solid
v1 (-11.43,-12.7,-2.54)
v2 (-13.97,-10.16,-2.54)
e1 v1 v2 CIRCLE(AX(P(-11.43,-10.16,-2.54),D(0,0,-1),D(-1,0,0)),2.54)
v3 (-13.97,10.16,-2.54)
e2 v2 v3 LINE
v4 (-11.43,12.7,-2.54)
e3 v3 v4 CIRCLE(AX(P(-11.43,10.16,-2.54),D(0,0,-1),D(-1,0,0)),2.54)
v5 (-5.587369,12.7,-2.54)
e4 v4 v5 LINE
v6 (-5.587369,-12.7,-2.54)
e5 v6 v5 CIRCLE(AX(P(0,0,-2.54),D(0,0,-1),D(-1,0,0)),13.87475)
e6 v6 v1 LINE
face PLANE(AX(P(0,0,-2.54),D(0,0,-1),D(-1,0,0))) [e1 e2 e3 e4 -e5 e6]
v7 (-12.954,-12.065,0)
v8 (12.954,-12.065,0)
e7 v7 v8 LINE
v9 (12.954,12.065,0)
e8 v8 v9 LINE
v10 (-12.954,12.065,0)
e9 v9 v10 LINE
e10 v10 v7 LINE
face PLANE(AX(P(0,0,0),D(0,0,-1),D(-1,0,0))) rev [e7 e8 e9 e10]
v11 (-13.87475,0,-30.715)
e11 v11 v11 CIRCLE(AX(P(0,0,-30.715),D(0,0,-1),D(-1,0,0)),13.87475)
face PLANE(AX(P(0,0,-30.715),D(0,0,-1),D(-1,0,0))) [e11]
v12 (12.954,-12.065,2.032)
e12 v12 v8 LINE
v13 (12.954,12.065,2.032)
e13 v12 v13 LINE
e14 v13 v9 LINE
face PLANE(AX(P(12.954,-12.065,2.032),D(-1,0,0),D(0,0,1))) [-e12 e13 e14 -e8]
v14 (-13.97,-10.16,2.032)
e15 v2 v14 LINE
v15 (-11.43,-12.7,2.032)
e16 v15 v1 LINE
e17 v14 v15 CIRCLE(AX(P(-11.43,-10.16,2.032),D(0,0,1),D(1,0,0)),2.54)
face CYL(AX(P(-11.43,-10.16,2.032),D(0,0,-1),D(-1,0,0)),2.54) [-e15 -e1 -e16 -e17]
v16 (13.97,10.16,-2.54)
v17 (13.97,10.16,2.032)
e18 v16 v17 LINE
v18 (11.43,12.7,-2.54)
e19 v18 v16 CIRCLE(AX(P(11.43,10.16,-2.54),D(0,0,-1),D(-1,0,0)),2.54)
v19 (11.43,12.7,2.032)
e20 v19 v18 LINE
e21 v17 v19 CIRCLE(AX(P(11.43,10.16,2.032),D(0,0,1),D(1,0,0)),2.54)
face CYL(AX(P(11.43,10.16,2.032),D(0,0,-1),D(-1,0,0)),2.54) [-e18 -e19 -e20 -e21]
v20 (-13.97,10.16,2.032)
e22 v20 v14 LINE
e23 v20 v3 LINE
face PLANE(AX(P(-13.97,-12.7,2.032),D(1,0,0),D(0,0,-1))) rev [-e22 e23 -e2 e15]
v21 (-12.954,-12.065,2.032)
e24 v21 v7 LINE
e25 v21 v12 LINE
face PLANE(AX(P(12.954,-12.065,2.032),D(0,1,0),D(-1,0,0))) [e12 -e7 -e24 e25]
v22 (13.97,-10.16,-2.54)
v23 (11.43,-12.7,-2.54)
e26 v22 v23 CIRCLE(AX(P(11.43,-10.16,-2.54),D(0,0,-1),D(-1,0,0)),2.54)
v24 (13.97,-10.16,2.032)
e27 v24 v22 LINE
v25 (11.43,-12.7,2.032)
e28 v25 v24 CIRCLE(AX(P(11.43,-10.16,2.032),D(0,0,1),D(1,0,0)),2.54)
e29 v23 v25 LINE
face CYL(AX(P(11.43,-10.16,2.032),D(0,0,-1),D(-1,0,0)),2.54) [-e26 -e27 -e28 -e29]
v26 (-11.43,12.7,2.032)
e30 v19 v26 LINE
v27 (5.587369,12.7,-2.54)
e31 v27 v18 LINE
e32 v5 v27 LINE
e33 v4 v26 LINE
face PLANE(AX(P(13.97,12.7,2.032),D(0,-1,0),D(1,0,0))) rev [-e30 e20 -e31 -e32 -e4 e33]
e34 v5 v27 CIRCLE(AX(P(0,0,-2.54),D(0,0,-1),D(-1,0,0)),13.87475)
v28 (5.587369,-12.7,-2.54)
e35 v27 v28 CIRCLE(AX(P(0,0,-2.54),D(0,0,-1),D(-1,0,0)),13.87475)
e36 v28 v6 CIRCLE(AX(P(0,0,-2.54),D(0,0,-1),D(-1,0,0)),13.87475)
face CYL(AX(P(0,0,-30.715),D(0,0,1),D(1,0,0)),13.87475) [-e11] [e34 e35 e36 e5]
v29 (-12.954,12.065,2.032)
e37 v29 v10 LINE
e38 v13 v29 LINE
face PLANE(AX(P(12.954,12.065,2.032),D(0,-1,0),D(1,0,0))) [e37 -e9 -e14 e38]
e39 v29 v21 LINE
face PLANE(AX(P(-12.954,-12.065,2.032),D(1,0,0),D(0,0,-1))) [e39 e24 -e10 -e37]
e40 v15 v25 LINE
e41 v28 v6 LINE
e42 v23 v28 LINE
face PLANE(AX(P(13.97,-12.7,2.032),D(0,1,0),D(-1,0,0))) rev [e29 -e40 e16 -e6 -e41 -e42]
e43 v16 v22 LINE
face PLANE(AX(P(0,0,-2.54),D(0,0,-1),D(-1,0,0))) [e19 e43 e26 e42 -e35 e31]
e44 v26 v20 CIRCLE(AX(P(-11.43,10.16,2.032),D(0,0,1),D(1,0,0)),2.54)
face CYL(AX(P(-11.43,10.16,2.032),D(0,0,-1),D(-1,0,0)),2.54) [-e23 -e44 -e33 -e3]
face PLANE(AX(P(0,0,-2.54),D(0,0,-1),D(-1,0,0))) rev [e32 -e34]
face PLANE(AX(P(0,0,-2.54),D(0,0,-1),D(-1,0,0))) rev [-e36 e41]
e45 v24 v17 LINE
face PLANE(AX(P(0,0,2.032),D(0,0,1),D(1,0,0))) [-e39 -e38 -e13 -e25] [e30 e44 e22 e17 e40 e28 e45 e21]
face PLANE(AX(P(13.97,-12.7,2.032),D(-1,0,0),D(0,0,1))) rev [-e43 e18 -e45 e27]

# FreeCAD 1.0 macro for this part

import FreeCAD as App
import Part
import Sketcher
from FreeCAD import Vector
Q = App.Units.Quantity


def edges_at(feature, points):
    """Names of the edges that pass closest to the given points."""
    edges = feature.Shape.Edges
    near = lambda p: min(range(len(edges)), key=lambda i: edges[i].distToShape(Part.Vertex(*p))[0])
    return sorted({f"Edge{near(p) + 1}" for p in points})

doc = App.newDocument("Part")
params = doc.addObject("Spreadsheet::Sheet", "Params")
for row, (alias, value) in enumerate([
    ("sketch1_height", "1 in"),
    ("sketch1_width", "1.1 in"),
    ("sketch1_width2", "1.02 in"),
    ("sketch1_height2", "0.95 in"),
    ("pad1_length", "0.08 in"),
    ("sketch2_height", "1 in"),
    ("sketch2_width", "1.1 in"),
    ("pad2_length", "0.1 in"),
    ("pad3_length", "28.175 mm"),
    ("fillet_radius", "0.1 in"),
], start=1):
    params.set(f"A{row}", alias)
    params.set(f"B{row}", "=" + value)
    params.setAlias(f"B{row}", alias)

body = doc.addObject("PartDesign::Body", "Body")

sketch1 = body.newObject("Sketcher::SketchObject", "Sketch")
sketch1.AttachmentSupport = (doc.getObject("XY_Plane"), [""])
sketch1.MapMode = "FlatFace"
sketch1.addGeometry([
    Part.LineSegment(Vector(-13.97, 12.7, 0), Vector(-13.97, -12.7, 0)),
    Part.LineSegment(Vector(-13.97, -12.7, 0), Vector(13.97, -12.7, 0)),
    Part.LineSegment(Vector(13.97, -12.7, 0), Vector(13.97, 12.7, 0)),
    Part.LineSegment(Vector(13.97, 12.7, 0), Vector(-13.97, 12.7, 0)),
    Part.LineSegment(Vector(12.954, -12.065, 0), Vector(-12.954, -12.065, 0)),
    Part.LineSegment(Vector(-12.954, -12.065, 0), Vector(-12.954, 12.065, 0)),
    Part.LineSegment(Vector(-12.954, 12.065, 0), Vector(12.954, 12.065, 0)),
    Part.LineSegment(Vector(12.954, 12.065, 0), Vector(12.954, -12.065, 0)),
], False)
sketch1.addConstraint([
    Sketcher.Constraint("Coincident", 0, 2, 1, 1),
    Sketcher.Constraint("Coincident", 1, 2, 2, 1),
    Sketcher.Constraint("Coincident", 2, 2, 3, 1),
    Sketcher.Constraint("Coincident", 3, 2, 0, 1),
    Sketcher.Constraint("Coincident", 4, 2, 5, 1),
    Sketcher.Constraint("Coincident", 5, 2, 6, 1),
    Sketcher.Constraint("Coincident", 6, 2, 7, 1),
    Sketcher.Constraint("Coincident", 7, 2, 4, 1),
    Sketcher.Constraint("Vertical", 0),
    Sketcher.Constraint("Horizontal", 1),
    Sketcher.Constraint("Vertical", 2),
    Sketcher.Constraint("Horizontal", 3),
    Sketcher.Constraint("Horizontal", 4),
    Sketcher.Constraint("Vertical", 5),
    Sketcher.Constraint("Horizontal", 6),
    Sketcher.Constraint("Vertical", 7),
    Sketcher.Constraint("Symmetric", 0, 2, 2, 2, -1, 1),
    Sketcher.Constraint("Symmetric", 4, 2, 6, 2, -1, 1),
    Sketcher.Constraint("DistanceY", 0, 2, 0, 1, Q("1 in")),
    Sketcher.Constraint("DistanceX", 1, 1, 1, 2, Q("1.1 in")),
    Sketcher.Constraint("DistanceX", 4, 2, 4, 1, Q("1.02 in")),
    Sketcher.Constraint("DistanceY", 5, 1, 5, 2, Q("0.95 in")),
])
sketch1.setExpression("Constraints[18]", "Params.sketch1_height")
sketch1.setExpression("Constraints[19]", "Params.sketch1_width")
sketch1.setExpression("Constraints[20]", "Params.sketch1_width2")
sketch1.setExpression("Constraints[21]", "Params.sketch1_height2")
pad1 = body.newObject("PartDesign::Pad", "Pad")
pad1.Profile = sketch1
pad1.setExpression("Length", "Params.pad1_length")

sketch2 = body.newObject("Sketcher::SketchObject", "Sketch001")
sketch2.AttachmentSupport = (doc.getObject("XY_Plane"), [""])
sketch2.MapMode = "FlatFace"
sketch2.addGeometry([
    Part.LineSegment(Vector(13.97, 12.7, 0), Vector(13.97, -12.7, 0)),
    Part.LineSegment(Vector(13.97, -12.7, 0), Vector(-13.97, -12.7, 0)),
    Part.LineSegment(Vector(-13.97, -12.7, 0), Vector(-13.97, 12.7, 0)),
    Part.LineSegment(Vector(-13.97, 12.7, 0), Vector(13.97, 12.7, 0)),
], False)
sketch2.addConstraint([
    Sketcher.Constraint("Coincident", 0, 2, 1, 1),
    Sketcher.Constraint("Coincident", 1, 2, 2, 1),
    Sketcher.Constraint("Coincident", 2, 2, 3, 1),
    Sketcher.Constraint("Coincident", 3, 2, 0, 1),
    Sketcher.Constraint("Vertical", 0),
    Sketcher.Constraint("Horizontal", 1),
    Sketcher.Constraint("Vertical", 2),
    Sketcher.Constraint("Horizontal", 3),
    Sketcher.Constraint("Symmetric", 0, 2, 2, 2, -1, 1),
    Sketcher.Constraint("DistanceY", 0, 2, 0, 1, Q("1 in")),
    Sketcher.Constraint("DistanceX", 1, 2, 1, 1, Q("1.1 in")),
])
sketch2.setExpression("Constraints[9]", "Params.sketch2_height")
sketch2.setExpression("Constraints[10]", "Params.sketch2_width")
pad2 = body.newObject("PartDesign::Pad", "Pad001")
pad2.Profile = sketch2
pad2.setExpression("Length", "Params.pad2_length")
pad2.Reversed = True

sketch3 = body.newObject("Sketcher::SketchObject", "Sketch002")
sketch3.AttachmentSupport = (doc.getObject("XY_Plane"), [""])
sketch3.MapMode = "FlatFace"
sketch3.AttachmentOffset = App.Placement(Vector(0, 0, -0.1 * 25.4), App.Rotation())
sketch3.addGeometry(Part.Circle(Vector(0, 0, 0), Vector(0, 0, 1), 13.87475), False)
sketch3.addConstraint([
    Sketcher.Constraint("Coincident", 0, 3, -1, 1),
    Sketcher.Constraint("Diameter", 0, Q("1.0925 in")),
])
pad3 = body.newObject("PartDesign::Pad", "Pad002")
pad3.Profile = sketch3
pad3.setExpression("Length", "Params.pad3_length")
pad3.Reversed = True
doc.recompute()

fillet = body.newObject("PartDesign::Fillet", "Fillet")
fillet.Base = (pad3, edges_at(pad3, [
    (-13.97, 12.7, -0.254),
    (13.97, 12.7, -0.254),
    (13.97, -12.7, -0.254),
    (-13.97, -12.7, -0.254),
]))
fillet.setExpression("Radius", "Params.fillet_radius")

doc.recompute()
